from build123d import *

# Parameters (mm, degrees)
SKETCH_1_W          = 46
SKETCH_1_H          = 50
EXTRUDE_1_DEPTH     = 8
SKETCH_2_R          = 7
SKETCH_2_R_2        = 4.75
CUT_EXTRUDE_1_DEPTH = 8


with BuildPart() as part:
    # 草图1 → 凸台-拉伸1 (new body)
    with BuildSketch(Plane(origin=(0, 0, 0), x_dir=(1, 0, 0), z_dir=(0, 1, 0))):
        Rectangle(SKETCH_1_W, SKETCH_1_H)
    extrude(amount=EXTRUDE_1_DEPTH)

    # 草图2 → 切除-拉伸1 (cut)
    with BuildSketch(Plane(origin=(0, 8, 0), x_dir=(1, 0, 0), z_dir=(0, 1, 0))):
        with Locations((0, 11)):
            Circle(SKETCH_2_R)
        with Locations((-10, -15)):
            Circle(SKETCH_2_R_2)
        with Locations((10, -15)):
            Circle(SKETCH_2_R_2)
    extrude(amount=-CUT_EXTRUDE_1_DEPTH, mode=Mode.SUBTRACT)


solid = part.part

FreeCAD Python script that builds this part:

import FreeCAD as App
import Part
import Sketcher
Q = App.Units.Quantity


def add_polygon(sketch, points):
    """Adds a closed chain of lines whose ends are joined by coincident constraints."""
    first, n = sketch.GeometryCount, len(points)
    for a, b in zip(points, points[1:] + points[:1]):
        sketch.addGeometry(Part.LineSegment(App.Vector(*a, 0), App.Vector(*b, 0)), False)
    for i in range(n):
        sketch.addConstraint(Sketcher.Constraint("Coincident", first + i, 2, first + (i + 1) % n, 1))

doc = App.newDocument("Part")
body = doc.addObject("PartDesign::Body", "Body")

# Sketch on XZ plane
sketch1 = doc.addObject("Sketcher::SketchObject", "Sketch")
body.addObject(sketch1)
sketch1.AttachmentSupport = (doc.XZ_Plane, [""])
sketch1.MapMode = "FlatFace"
add_polygon(sketch1, [(-23, -25), (-23, 25), (23, 25), (23, -25)])  # lines 0-3
sketch1.addConstraint(Sketcher.Constraint("Vertical", 0))
sketch1.addConstraint(Sketcher.Constraint("Horizontal", 1))
sketch1.addConstraint(Sketcher.Constraint("Vertical", 2))
sketch1.addConstraint(Sketcher.Constraint("Horizontal", 3))
sketch1.addConstraint(Sketcher.Constraint("Symmetric", 0, 2, 2, 2, -1, 1))
sketch1.addConstraint(Sketcher.Constraint("DistanceX", 1, 1, 1, 2, Q("46 mm")))
sketch1.addConstraint(Sketcher.Constraint("DistanceY", 0, 1, 0, 2, Q("50 mm")))
pad1 = doc.addObject("PartDesign::Pad", "Pad")
body.addObject(pad1)
pad1.Profile = sketch1
pad1.Length = 8
pad1.Reversed = True

# Sketch on XZ plane
sketch2 = doc.addObject("Sketcher::SketchObject", "Sketch001")
body.addObject(sketch2)
sketch2.AttachmentSupport = (doc.XZ_Plane, [""])
sketch2.MapMode = "FlatFace"
sketch2.AttachmentOffset = App.Placement(App.Vector(0, 0, -8), App.Rotation())
sketch2.addGeometry(Part.Circle(App.Vector(0, -11, 0), App.Vector(0, 0, 1), 7), False)
sketch2.addGeometry(Part.Circle(App.Vector(-10, 15, 0), App.Vector(0, 0, 1), 4.8), False)
sketch2.addGeometry(Part.Circle(App.Vector(10, 15, 0), App.Vector(0, 0, 1), 4.8), False)
sketch2.addConstraint(Sketcher.Constraint("Equal", 1, 2))
sketch2.addConstraint(Sketcher.Constraint("Symmetric", 1, 3, 2, 3, -2))
sketch2.addConstraint(Sketcher.Constraint("PointOnObject", 0, 3, -2))
sketch2.addConstraint(Sketcher.Constraint("Diameter", 0, Q("14 mm")))
sketch2.addConstraint(Sketcher.Constraint("Diameter", 1, Q("9.5 mm")))
sketch2.addConstraint(Sketcher.Constraint("DistanceY", 0, 3, -1, 1, Q("11 mm")))
sketch2.addConstraint(Sketcher.Constraint("DistanceX", 1, 3, -1, 1, Q("10 mm")))
sketch2.addConstraint(Sketcher.Constraint("DistanceY", -1, 1, 1, 3, Q("15 mm")))
pocket1 = doc.addObject("PartDesign::Pocket", "Pocket")
body.addObject(pocket1)
pocket1.Profile = sketch2
pocket1.Length = 8
pocket1.Reversed = True

doc.recompute()
